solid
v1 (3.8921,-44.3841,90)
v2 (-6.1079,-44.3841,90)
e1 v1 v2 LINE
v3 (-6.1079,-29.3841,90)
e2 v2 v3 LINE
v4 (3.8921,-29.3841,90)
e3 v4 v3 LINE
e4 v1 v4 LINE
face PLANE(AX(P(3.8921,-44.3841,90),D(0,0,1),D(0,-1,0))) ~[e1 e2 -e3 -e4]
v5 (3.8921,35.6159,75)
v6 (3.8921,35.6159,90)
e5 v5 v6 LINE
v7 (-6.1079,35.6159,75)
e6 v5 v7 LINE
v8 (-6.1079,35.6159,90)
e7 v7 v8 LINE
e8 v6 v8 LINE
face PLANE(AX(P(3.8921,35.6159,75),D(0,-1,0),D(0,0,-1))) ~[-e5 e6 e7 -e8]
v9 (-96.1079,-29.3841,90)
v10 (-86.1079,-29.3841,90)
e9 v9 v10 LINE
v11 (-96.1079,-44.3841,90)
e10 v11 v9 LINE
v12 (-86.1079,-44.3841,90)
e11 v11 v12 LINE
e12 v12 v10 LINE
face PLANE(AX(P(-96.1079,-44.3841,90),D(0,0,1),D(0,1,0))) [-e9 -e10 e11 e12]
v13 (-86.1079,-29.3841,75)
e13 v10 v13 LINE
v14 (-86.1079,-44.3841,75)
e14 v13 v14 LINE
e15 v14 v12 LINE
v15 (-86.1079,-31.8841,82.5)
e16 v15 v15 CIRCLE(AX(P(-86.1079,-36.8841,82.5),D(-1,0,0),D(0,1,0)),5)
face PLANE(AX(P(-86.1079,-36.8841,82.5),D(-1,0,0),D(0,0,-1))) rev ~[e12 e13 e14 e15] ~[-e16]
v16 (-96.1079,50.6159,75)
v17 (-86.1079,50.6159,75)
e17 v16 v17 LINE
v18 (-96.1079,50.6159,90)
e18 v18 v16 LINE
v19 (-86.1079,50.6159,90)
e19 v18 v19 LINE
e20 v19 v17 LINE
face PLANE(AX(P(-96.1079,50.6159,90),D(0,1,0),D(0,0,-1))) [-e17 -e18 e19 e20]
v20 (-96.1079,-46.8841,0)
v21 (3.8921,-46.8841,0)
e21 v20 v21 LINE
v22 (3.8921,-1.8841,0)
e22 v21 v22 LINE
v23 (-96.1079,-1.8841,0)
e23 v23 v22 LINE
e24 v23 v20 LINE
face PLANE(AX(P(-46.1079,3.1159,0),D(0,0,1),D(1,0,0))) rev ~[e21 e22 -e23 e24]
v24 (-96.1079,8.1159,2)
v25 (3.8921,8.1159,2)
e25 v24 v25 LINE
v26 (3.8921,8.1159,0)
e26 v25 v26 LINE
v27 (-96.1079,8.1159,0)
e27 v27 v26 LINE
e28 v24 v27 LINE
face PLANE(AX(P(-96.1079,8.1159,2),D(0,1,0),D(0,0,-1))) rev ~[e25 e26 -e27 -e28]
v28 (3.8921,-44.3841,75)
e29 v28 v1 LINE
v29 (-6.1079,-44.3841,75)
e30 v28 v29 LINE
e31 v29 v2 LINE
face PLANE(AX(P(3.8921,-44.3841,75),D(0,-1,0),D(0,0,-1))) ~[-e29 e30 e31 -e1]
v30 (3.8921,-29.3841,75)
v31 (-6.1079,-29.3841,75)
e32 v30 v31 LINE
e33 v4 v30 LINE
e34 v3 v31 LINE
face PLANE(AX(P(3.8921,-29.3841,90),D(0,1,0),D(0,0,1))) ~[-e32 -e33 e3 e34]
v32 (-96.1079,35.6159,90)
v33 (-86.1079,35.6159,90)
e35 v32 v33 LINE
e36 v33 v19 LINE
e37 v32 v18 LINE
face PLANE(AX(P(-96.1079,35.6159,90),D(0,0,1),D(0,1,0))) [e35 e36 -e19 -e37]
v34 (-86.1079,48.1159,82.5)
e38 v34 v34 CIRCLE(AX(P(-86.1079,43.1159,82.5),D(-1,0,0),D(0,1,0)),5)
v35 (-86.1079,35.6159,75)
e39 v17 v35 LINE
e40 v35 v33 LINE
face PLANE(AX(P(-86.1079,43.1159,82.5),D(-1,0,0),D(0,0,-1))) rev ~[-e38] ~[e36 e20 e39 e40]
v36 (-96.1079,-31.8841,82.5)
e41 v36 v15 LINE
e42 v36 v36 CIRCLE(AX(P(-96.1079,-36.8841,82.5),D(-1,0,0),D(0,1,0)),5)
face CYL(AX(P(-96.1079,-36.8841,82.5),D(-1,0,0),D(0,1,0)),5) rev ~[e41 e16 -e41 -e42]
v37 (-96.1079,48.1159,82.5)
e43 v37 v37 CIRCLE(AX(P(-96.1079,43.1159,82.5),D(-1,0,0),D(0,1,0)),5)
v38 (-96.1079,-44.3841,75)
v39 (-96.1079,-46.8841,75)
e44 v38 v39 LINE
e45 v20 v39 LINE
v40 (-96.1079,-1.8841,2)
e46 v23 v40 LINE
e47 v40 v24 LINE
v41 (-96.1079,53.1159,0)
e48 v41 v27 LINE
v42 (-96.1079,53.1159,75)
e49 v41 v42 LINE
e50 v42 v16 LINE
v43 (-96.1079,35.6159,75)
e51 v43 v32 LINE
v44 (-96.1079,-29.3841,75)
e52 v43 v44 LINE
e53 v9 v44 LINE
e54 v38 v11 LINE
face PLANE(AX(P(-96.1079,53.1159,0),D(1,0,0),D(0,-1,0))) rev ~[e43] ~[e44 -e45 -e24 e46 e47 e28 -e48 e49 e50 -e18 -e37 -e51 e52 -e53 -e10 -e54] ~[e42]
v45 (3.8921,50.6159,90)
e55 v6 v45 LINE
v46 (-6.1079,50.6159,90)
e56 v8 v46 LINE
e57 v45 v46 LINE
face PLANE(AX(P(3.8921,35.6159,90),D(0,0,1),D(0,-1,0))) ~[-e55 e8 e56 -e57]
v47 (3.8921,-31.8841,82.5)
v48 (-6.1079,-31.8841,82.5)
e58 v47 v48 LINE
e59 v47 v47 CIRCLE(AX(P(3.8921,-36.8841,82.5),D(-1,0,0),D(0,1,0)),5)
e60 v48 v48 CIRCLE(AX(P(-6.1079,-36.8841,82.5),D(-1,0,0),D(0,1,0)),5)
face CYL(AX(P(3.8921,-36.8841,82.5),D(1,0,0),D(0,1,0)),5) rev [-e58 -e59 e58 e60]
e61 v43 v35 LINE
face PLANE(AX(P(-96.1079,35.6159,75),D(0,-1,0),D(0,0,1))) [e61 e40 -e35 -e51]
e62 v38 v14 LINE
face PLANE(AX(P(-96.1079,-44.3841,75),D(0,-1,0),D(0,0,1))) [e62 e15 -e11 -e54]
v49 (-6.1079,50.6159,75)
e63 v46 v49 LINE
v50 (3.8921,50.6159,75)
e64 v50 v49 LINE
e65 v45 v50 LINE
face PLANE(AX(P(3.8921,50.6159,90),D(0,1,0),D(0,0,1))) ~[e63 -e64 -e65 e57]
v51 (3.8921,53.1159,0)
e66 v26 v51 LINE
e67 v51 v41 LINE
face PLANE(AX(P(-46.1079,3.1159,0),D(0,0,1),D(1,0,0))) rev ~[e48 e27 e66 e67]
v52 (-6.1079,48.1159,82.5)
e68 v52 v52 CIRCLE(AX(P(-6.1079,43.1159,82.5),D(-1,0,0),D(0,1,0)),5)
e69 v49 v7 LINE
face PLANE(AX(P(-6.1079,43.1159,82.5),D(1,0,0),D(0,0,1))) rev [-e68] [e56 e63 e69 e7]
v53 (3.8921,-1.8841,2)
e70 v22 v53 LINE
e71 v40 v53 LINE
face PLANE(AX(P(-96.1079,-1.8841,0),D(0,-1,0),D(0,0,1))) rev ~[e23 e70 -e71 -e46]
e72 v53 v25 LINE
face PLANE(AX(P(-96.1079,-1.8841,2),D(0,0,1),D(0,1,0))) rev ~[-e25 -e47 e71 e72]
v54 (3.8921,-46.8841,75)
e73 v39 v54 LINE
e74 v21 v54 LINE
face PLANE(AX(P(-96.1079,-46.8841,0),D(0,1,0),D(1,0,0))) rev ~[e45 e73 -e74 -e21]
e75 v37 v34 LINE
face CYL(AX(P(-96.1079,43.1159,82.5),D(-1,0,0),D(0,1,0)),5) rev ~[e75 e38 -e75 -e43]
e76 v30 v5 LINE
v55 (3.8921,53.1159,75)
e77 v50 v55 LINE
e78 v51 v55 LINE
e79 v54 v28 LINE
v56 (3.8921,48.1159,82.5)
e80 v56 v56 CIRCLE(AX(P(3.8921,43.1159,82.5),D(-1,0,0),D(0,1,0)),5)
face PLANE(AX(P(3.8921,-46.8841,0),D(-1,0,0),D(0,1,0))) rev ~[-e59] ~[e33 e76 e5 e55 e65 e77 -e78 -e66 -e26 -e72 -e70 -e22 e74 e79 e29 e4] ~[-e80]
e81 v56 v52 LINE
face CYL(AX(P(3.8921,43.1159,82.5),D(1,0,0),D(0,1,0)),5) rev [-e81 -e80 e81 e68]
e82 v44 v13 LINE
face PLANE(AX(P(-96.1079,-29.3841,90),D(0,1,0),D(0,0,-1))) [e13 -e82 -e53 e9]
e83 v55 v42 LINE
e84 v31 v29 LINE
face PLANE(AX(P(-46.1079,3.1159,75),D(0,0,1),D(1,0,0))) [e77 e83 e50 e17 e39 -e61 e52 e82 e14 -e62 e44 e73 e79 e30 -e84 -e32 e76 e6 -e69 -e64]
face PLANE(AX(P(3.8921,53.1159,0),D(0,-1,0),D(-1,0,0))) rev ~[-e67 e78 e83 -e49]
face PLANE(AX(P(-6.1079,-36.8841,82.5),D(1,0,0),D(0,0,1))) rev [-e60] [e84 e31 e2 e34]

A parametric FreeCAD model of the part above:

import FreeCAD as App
import Part
import Sketcher
from FreeCAD import Vector

doc = App.newDocument("Part")
body = doc.addObject("PartDesign::Body", "Body")

# Sketch on XY plane
sketch1 = doc.addObject("Sketcher::SketchObject", "Sketch")
body.addObject(sketch1)
sketch1.AttachmentSupport = (doc.XY_Plane, [""])
sketch1.MapMode = "FlatFace"
sketch1.addGeometry([
    Part.LineSegment(Vector(-96.1079, 53.1159, 0), Vector(-96.1079, -46.8841, 0)),
    Part.LineSegment(Vector(-96.1079, -46.8841, 0), Vector(3.8921, -46.8841, 0)),
    Part.LineSegment(Vector(3.8921, -46.8841, 0), Vector(3.8921, 53.1159, 0)),
    Part.LineSegment(Vector(3.8921, 53.1159, 0), Vector(-96.1079, 53.1159, 0)),
], False)
sketch1.addConstraint([
    Sketcher.Constraint("Coincident", 0, 2, 1, 1),
    Sketcher.Constraint("Coincident", 1, 2, 2, 1),
    Sketcher.Constraint("Coincident", 2, 2, 3, 1),
    Sketcher.Constraint("Coincident", 3, 2, 0, 1),
    Sketcher.Constraint("Vertical", 0),
    Sketcher.Constraint("Horizontal", 1),
    Sketcher.Constraint("Vertical", 2),
    Sketcher.Constraint("Horizontal", 3),
    Sketcher.Constraint("Equal", 3, 0),
    Sketcher.Constraint("DistanceX", 1, 1, 1, 2, 100.0),
    Sketcher.Constraint("DistanceX", 0, 2, -1, 1, 96.108),
    Sketcher.Constraint("DistanceY", 0, 2, -1, 1, 46.884),
])
pad1 = doc.addObject("PartDesign::Pad", "Pad")
body.addObject(pad1)
pad1.Profile = sketch1
pad1.Length = 75

# Sketch on YZ plane
sketch2 = doc.addObject("Sketcher::SketchObject", "Sketch001")
body.addObject(sketch2)
sketch2.AttachmentSupport = (doc.YZ_Plane, [""])
sketch2.MapMode = "FlatFace"
sketch2.AttachmentOffset = App.Placement(Vector(0, 0, -96.1079), App.Rotation())
sketch2.addGeometry([
    Part.LineSegment(Vector(35.6159, 75, 0), Vector(35.6159, 90, 0)),  # 0
    Part.LineSegment(Vector(35.6159, 90, 0), Vector(50.6159, 90, 0)),  # 1
    Part.LineSegment(Vector(50.6159, 90, 0), Vector(50.6159, 75, 0)),  # 2
    Part.LineSegment(Vector(50.6159, 75, 0), Vector(35.6159, 75, 0)),  # 3
    Part.Circle(Vector(43.1159, 82.5, 0), Vector(0, 0, 1), 5),  # 4
    Part.LineSegment(Vector(-44.3841, 75, 0), Vector(-44.3841, 90, 0)),  # 5
    Part.LineSegment(Vector(-44.3841, 90, 0), Vector(-29.3841, 90, 0)),  # 6
    Part.LineSegment(Vector(-29.3841, 90, 0), Vector(-29.3841, 75, 0)),  # 7
    Part.LineSegment(Vector(-29.3841, 75, 0), Vector(-44.3841, 75, 0)),  # 8
    Part.Circle(Vector(-36.8841, 82.5, 0), Vector(0, 0, 1), 5),  # 9
], False)
sketch2.addConstraint([
    Sketcher.Constraint("Coincident", 0, 2, 1, 1),
    Sketcher.Constraint("Coincident", 1, 2, 2, 1),
    Sketcher.Constraint("Coincident", 2, 2, 3, 1),
    Sketcher.Constraint("Coincident", 3, 2, 0, 1),
    Sketcher.Constraint("Coincident", 5, 2, 6, 1),
    Sketcher.Constraint("Coincident", 6, 2, 7, 1),
    Sketcher.Constraint("Coincident", 7, 2, 8, 1),
    Sketcher.Constraint("Coincident", 8, 2, 5, 1),
    Sketcher.Constraint("Vertical", 0),
    Sketcher.Constraint("Horizontal", 1),
    Sketcher.Constraint("Vertical", 2),
    Sketcher.Constraint("Horizontal", 3),
    Sketcher.Constraint("Vertical", 5),
    Sketcher.Constraint("Horizontal", 6),
    Sketcher.Constraint("Vertical", 7),
    Sketcher.Constraint("Horizontal", 8),
    Sketcher.Constraint("Equal", 4, 9),
    Sketcher.Constraint("Horizontal", 4, 3, 9, 3),
    Sketcher.Constraint("Horizontal", 1, 2, 5, 2),
    Sketcher.Constraint("Horizontal", 3, 2, 7, 2),
    Sketcher.Constraint("Equal", 3, 6),
    Sketcher.Constraint("Equal", 8, 0),
    Sketcher.Constraint("Diameter", 4, 10.0),
    Sketcher.Constraint("DistanceX", 1, 1, 1, 2, 15.0),
    Sketcher.Constraint("DistanceY", -1, 1, 0, 2, 90.0),
    Sketcher.Constraint("DistanceX", 9, 3, 4, 3, 80.0),
    Sketcher.Constraint("DistanceX", 5, 2, 0, 2, 80.0),
    Sketcher.Constraint("DistanceY", -1, 1, 4, 3, 82.5),
    Sketcher.Constraint("DistanceX", 0, 2, 4, 3, 7.5),
    Sketcher.Constraint("DistanceX", -1, 1, 4, 3, 43.116),
])
pad2 = doc.addObject("PartDesign::Pad", "Pad001")
body.addObject(pad2)
pad2.Profile = sketch2
pad2.Length = 10
doc.recompute()

datumplane = doc.addObject("PartDesign::Plane", "DatumPlane")
body.addObject(datumplane)
datumplane.AttachmentSupport = (doc.YZ_Plane, [""])
datumplane.MapMode = "FlatFace"
datumplane.AttachmentOffset = App.Placement(Vector(0, 0, -46.1079), App.Rotation())
mirrored = doc.addObject("PartDesign::Mirrored", "Mirrored")
body.addObject(mirrored)
mirrored.Originals = [pad2]
mirrored.MirrorPlane = (datumplane, [""])
body.Tip = mirrored

# Sketch on YZ plane
sketch3 = doc.addObject("Sketcher::SketchObject", "Sketch002")
body.addObject(sketch3)
sketch3.AttachmentSupport = (doc.YZ_Plane, [""])
sketch3.MapMode = "FlatFace"
sketch3.AttachmentOffset = App.Placement(Vector(0, 0, -96.1079), App.Rotation())
sketch3.addGeometry([
    Part.LineSegment(Vector(8.1159, 2, 0), Vector(8.1159, 0, 0)),
    Part.LineSegment(Vector(8.1159, 0, 0), Vector(-1.8841, 0, 0)),
    Part.LineSegment(Vector(-1.8841, 0, 0), Vector(-1.8841, 2, 0)),
    Part.LineSegment(Vector(-1.8841, 2, 0), Vector(8.1159, 2, 0)),
], False)
sketch3.addConstraint([
    Sketcher.Constraint("Coincident", 0, 2, 1, 1),
    Sketcher.Constraint("Coincident", 1, 2, 2, 1),
    Sketcher.Constraint("Coincident", 2, 2, 3, 1),
    Sketcher.Constraint("Coincident", 3, 2, 0, 1),
    Sketcher.Constraint("Vertical", 0),
    Sketcher.Constraint("Horizontal", 1),
    Sketcher.Constraint("Vertical", 2),
    Sketcher.Constraint("Horizontal", 3),
    Sketcher.Constraint("PointOnObject", 0, 2, -1),
    Sketcher.Constraint("DistanceX", 1, 2, 1, 1, 10.0),
    Sketcher.Constraint("DistanceY", 0, 2, 0, 1, 2.0),
    Sketcher.Constraint("DistanceX", -1, 1, 0, 2, 8.116),
])
pocket1 = doc.addObject("PartDesign::Pocket", "Pocket")
body.addObject(pocket1)
pocket1.Profile = sketch3
pocket1.Type = "ThroughAll"
pocket1.Reversed = True

doc.recompute()
